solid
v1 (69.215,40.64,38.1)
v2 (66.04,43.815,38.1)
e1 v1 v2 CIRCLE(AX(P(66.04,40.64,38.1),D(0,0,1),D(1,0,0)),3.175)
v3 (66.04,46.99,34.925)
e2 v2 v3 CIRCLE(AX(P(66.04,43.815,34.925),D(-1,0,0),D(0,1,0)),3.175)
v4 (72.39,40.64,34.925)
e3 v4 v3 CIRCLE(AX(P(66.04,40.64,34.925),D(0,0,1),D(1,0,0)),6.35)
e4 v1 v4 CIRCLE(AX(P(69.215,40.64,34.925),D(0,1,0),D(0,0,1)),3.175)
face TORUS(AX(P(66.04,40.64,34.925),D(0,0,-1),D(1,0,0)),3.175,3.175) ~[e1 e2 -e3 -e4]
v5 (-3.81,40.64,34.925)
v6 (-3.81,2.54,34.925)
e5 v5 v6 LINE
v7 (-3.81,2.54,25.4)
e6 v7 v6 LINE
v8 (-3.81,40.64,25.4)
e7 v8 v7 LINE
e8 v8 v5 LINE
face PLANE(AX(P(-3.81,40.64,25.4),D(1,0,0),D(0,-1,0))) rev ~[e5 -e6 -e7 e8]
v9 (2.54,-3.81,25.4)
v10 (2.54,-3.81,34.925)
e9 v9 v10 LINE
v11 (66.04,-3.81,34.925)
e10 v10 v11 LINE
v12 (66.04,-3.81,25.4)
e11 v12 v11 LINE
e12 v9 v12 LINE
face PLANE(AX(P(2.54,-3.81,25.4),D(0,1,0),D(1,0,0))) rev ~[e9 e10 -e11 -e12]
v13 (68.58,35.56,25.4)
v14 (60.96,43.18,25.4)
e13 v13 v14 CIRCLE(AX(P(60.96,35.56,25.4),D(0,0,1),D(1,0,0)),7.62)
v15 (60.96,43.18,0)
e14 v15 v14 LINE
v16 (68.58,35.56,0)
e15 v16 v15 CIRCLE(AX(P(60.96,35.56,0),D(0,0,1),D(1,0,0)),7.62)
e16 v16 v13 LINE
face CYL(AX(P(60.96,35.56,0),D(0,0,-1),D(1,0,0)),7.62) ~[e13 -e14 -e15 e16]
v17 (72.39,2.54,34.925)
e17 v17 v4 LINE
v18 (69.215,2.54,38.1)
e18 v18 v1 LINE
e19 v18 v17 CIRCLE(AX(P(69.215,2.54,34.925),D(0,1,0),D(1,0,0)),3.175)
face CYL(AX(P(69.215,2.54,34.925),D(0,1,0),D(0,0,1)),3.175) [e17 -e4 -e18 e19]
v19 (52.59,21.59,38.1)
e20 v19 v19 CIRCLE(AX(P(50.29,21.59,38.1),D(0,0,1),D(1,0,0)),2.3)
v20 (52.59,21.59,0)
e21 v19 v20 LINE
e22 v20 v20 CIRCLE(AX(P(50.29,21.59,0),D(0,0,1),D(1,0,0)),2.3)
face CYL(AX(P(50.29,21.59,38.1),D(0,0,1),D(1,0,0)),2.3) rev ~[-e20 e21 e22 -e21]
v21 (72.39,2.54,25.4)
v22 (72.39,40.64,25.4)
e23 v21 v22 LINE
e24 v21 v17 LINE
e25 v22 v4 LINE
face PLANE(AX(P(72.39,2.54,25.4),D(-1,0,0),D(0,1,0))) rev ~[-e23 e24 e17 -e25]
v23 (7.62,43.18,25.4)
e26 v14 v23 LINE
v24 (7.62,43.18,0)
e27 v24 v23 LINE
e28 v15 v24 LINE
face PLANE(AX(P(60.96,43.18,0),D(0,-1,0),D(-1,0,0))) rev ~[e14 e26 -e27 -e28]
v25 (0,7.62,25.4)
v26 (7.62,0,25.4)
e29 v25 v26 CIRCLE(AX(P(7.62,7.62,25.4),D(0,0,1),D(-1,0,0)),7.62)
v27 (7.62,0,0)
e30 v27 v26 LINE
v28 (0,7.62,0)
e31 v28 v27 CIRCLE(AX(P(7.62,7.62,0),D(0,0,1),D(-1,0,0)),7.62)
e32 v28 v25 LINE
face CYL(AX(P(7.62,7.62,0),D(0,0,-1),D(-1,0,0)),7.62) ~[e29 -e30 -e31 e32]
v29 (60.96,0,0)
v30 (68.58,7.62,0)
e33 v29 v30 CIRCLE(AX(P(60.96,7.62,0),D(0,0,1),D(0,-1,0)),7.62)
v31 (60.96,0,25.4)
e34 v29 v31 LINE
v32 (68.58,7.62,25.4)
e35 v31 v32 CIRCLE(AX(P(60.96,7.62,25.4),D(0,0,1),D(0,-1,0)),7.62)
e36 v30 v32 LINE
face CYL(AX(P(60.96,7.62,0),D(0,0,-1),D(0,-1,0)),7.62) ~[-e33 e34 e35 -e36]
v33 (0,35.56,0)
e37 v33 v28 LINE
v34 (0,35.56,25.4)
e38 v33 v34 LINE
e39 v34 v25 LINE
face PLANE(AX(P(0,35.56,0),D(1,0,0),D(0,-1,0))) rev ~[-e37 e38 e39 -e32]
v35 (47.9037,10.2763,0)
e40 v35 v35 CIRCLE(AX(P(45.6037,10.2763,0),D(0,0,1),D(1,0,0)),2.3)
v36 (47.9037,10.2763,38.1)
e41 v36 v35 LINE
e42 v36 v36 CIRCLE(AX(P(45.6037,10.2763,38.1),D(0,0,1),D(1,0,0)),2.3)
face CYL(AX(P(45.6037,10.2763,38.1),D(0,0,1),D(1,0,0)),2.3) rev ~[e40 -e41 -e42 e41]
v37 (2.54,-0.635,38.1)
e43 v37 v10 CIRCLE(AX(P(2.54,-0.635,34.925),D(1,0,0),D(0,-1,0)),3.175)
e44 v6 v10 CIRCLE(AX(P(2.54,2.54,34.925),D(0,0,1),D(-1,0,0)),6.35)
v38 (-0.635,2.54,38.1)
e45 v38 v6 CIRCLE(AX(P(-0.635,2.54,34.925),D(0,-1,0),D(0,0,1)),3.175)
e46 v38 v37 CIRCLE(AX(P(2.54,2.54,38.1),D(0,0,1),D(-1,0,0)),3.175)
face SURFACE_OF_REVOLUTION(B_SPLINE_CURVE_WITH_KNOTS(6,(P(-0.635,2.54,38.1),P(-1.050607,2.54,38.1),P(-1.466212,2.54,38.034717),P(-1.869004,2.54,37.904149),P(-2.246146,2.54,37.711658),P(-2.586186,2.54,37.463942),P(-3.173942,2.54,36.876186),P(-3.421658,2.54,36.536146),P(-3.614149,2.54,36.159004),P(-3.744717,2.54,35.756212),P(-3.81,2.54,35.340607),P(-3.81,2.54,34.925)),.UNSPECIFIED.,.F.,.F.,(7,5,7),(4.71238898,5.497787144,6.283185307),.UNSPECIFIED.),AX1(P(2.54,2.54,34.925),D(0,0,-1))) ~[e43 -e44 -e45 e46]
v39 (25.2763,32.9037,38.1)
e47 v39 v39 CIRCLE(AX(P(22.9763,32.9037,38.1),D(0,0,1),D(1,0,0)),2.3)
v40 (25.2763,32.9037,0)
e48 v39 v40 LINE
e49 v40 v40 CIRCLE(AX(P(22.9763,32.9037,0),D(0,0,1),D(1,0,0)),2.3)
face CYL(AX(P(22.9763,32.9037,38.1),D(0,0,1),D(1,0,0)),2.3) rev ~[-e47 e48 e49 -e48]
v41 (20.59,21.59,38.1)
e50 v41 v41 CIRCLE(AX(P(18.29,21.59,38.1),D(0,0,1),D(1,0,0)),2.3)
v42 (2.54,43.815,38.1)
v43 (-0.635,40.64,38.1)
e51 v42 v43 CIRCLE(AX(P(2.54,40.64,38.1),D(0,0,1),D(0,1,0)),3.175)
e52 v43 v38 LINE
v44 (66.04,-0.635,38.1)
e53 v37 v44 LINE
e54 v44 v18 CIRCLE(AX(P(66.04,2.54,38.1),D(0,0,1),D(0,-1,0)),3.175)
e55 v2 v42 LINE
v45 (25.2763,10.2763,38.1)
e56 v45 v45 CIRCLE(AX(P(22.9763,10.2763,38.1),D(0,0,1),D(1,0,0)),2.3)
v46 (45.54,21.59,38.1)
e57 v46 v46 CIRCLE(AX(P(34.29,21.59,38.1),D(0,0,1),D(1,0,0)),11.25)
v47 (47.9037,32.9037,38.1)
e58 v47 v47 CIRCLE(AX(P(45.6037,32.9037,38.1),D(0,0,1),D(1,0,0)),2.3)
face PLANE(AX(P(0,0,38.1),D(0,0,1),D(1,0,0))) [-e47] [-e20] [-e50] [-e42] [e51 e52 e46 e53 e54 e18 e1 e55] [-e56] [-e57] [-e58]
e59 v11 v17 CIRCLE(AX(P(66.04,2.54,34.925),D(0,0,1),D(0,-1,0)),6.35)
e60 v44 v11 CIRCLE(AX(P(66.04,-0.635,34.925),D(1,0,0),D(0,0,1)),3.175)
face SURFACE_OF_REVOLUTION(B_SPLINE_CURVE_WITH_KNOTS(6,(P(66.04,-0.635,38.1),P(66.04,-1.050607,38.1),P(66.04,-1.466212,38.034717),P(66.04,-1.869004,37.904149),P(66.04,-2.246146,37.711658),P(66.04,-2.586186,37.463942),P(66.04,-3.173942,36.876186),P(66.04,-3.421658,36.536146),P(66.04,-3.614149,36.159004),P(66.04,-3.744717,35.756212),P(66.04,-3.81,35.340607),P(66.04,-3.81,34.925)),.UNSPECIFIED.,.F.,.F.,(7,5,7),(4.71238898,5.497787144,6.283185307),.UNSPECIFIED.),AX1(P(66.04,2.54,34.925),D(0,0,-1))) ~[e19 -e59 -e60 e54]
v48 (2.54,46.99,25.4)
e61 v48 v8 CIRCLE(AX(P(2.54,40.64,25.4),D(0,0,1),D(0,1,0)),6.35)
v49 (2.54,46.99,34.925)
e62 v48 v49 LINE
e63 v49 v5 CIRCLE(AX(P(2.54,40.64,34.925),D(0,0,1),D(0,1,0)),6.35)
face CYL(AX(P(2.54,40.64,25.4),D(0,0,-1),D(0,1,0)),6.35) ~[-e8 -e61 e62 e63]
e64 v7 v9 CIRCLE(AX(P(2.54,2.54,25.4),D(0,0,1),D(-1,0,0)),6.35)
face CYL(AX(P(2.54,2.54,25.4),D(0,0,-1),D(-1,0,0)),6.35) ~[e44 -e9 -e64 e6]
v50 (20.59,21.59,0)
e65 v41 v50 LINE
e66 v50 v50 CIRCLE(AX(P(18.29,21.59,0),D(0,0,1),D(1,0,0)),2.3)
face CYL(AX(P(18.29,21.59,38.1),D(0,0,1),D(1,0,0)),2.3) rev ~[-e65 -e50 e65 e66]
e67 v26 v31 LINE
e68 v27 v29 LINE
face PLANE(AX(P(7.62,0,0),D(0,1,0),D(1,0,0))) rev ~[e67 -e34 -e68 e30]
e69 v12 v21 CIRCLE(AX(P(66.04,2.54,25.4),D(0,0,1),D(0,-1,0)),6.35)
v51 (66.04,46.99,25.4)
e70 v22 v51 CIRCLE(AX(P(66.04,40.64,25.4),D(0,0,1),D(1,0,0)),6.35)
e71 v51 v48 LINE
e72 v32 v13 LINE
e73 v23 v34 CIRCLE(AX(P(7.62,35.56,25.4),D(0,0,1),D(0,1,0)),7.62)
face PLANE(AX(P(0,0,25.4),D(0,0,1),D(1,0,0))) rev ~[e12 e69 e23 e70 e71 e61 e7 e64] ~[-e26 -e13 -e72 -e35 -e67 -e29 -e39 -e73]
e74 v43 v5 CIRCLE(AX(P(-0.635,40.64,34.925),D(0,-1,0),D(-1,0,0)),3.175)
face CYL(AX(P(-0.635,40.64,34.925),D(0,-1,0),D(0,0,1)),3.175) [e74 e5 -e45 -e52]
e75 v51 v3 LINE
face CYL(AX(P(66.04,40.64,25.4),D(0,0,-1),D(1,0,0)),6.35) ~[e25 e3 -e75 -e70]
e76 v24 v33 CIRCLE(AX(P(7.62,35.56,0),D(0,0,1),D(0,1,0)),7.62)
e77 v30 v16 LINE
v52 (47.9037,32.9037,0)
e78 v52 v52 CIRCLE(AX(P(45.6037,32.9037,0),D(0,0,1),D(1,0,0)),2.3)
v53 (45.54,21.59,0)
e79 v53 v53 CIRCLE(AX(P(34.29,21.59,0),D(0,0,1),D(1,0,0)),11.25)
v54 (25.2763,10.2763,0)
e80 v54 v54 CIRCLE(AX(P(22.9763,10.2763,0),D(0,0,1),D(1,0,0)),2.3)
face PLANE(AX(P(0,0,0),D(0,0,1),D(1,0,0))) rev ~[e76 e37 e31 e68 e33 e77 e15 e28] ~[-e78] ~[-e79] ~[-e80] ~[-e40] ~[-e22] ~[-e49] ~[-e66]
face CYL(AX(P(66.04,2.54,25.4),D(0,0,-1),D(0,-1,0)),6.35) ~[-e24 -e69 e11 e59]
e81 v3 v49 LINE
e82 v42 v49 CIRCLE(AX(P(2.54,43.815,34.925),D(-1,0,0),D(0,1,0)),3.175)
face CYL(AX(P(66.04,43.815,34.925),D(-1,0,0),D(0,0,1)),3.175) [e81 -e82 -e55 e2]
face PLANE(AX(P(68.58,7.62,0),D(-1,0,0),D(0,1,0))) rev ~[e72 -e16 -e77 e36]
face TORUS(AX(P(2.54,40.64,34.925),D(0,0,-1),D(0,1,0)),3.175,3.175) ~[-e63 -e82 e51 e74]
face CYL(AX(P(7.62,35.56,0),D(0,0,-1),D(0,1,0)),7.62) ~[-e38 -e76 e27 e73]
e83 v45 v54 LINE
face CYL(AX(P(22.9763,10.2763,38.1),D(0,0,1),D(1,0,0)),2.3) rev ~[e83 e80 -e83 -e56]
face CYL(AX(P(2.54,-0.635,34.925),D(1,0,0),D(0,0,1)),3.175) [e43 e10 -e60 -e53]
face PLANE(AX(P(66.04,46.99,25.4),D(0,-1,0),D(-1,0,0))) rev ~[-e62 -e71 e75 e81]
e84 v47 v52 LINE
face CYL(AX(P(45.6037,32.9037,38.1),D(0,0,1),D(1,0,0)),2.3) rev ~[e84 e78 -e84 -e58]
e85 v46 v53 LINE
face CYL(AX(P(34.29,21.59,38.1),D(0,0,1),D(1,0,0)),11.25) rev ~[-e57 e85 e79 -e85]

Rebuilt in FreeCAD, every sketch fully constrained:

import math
import FreeCAD as App
import Part
import Sketcher
from FreeCAD import Vector
Q = App.Units.Quantity


def edges_at(feature, points):
    """Names of the edges that pass closest to the given points."""
    edges = feature.Shape.Edges
    near = lambda p: min(range(len(edges)), key=lambda i: edges[i].distToShape(Part.Vertex(*p))[0])
    return sorted({f"Edge{near(p) + 1}" for p in points})

doc = App.newDocument("Part")
body = doc.addObject("PartDesign::Body", "Body")

# Sketch on XY plane
sketch1 = doc.addObject("Sketcher::SketchObject", "Sketch")
body.addObject(sketch1)
sketch1.AttachmentSupport = (doc.XY_Plane, [""])
sketch1.MapMode = "FlatFace"
sketch1.addGeometry([
    Part.ArcOfCircle(Part.Circle(Vector(7.62, 7.62, 0), Vector(0, 0, 1), 7.62), math.radians(180), math.radians(270)),  # 0
    Part.LineSegment(Vector(7.62, 0, 0), Vector(60.96, 0, 0)),  # 1
    Part.ArcOfCircle(Part.Circle(Vector(60.96, 7.62, 0), Vector(0, 0, 1), 7.62), math.radians(-90), math.radians(0)),  # 2
    Part.LineSegment(Vector(68.58, 7.62, 0), Vector(68.58, 35.56, 0)),  # 3
    Part.ArcOfCircle(Part.Circle(Vector(60.96, 35.56, 0), Vector(0, 0, 1), 7.62), math.radians(0), math.radians(90)),  # 4
    Part.LineSegment(Vector(60.96, 43.18, 0), Vector(7.62, 43.18, 0)),  # 5
    Part.ArcOfCircle(Part.Circle(Vector(7.62, 35.56, 0), Vector(0, 0, 1), 7.62), math.radians(90), math.radians(180)),  # 6
    Part.LineSegment(Vector(0, 35.56, 0), Vector(0, 7.62, 0)),  # 7
], False)
sketch1.addConstraint([
    Sketcher.Constraint("Tangent", 0, 2, 1, 1),
    Sketcher.Constraint("Tangent", 1, 2, 2, 1),
    Sketcher.Constraint("Tangent", 2, 2, 3, 1),
    Sketcher.Constraint("Tangent", 3, 2, 4, 1),
    Sketcher.Constraint("Tangent", 4, 2, 5, 1),
    Sketcher.Constraint("Tangent", 5, 2, 6, 1),
    Sketcher.Constraint("Tangent", 6, 2, 7, 1),
    Sketcher.Constraint("Tangent", 7, 2, 0, 1),
    Sketcher.Constraint("Horizontal", 1),
    Sketcher.Constraint("Vertical", 3),
    Sketcher.Constraint("Horizontal", 5),
    Sketcher.Constraint("Vertical", 7),
    Sketcher.Constraint("Equal", 0, 2),
    Sketcher.Constraint("Equal", 2, 4),
    Sketcher.Constraint("Equal", 4, 6),
    Sketcher.Constraint("PointOnObject", 0, 2, -1),
    Sketcher.Constraint("PointOnObject", 6, 2, -2),
    Sketcher.Constraint("Radius", 0, Q("0.3 in")),
    Sketcher.Constraint("DistanceX", -1, 1, 2, 2, Q("2.7 in")),
    Sketcher.Constraint("DistanceY", -1, 1, 4, 2, Q("1.7 in")),
])
pad1 = doc.addObject("PartDesign::Pad", "Pad")
body.addObject(pad1)
pad1.Profile = sketch1
pad1.Length = Q("1 in")

# Sketch on XY plane
sketch2 = doc.addObject("Sketcher::SketchObject", "Sketch001")
body.addObject(sketch2)
sketch2.AttachmentSupport = (doc.XY_Plane, [""])
sketch2.MapMode = "FlatFace"
sketch2.AttachmentOffset = App.Placement(Vector(0, 0, 1 * 25.4), App.Rotation())
sketch2.addGeometry([
    Part.ArcOfCircle(Part.Circle(Vector(2.54, 2.54, 0), Vector(0, 0, 1), 6.35), math.radians(180), math.radians(270)),  # 0
    Part.LineSegment(Vector(2.54, -3.81, 0), Vector(66.04, -3.81, 0)),  # 1
    Part.ArcOfCircle(Part.Circle(Vector(66.04, 2.54, 0), Vector(0, 0, 1), 6.35), math.radians(-90), math.radians(0)),  # 2
    Part.LineSegment(Vector(72.39, 2.54, 0), Vector(72.39, 40.64, 0)),  # 3
    Part.ArcOfCircle(Part.Circle(Vector(66.04, 40.64, 0), Vector(0, 0, 1), 6.35), math.radians(0), math.radians(90)),  # 4
    Part.LineSegment(Vector(66.04, 46.99, 0), Vector(2.54, 46.99, 0)),  # 5
    Part.ArcOfCircle(Part.Circle(Vector(2.54, 40.64, 0), Vector(0, 0, 1), 6.35), math.radians(90), math.radians(180)),  # 6
    Part.LineSegment(Vector(-3.81, 40.64, 0), Vector(-3.81, 2.54, 0)),  # 7
], False)
sketch2.addConstraint([
    Sketcher.Constraint("Tangent", 0, 2, 1, 1),
    Sketcher.Constraint("Tangent", 1, 2, 2, 1),
    Sketcher.Constraint("Tangent", 2, 2, 3, 1),
    Sketcher.Constraint("Tangent", 3, 2, 4, 1),
    Sketcher.Constraint("Tangent", 4, 2, 5, 1),
    Sketcher.Constraint("Tangent", 5, 2, 6, 1),
    Sketcher.Constraint("Tangent", 6, 2, 7, 1),
    Sketcher.Constraint("Tangent", 7, 2, 0, 1),
    Sketcher.Constraint("Horizontal", 1),
    Sketcher.Constraint("Vertical", 3),
    Sketcher.Constraint("Horizontal", 5),
    Sketcher.Constraint("Vertical", 7),
    Sketcher.Constraint("Equal", 0, 2),
    Sketcher.Constraint("Equal", 2, 4),
    Sketcher.Constraint("Equal", 4, 6),
    Sketcher.Constraint("Radius", 0, Q("0.25 in")),
    Sketcher.Constraint("DistanceY", 1, 2, 4, 2, Q("2 in")),
    Sketcher.Constraint("DistanceX", 1, 1, 1, 2, Q("2.5 in")),
    Sketcher.Constraint("DistanceX", -1, 1, 0, 3, Q("0.1 in")),
    Sketcher.Constraint("DistanceY", -1, 1, 0, 3, Q("0.1 in")),
])
pad2 = doc.addObject("PartDesign::Pad", "Pad001")
body.addObject(pad2)
pad2.Profile = sketch2
pad2.Length = Q("0.5 in")
doc.recompute()

fillet = doc.addObject("PartDesign::Fillet", "Fillet")
body.addObject(fillet)
fillet.Base = (pad2, edges_at(pad2, [
    (-1.95, 45.13, 38.1),
    (-3.81, 21.59, 38.1),
    (-1.95, -1.95, 38.1),
    (34.29, -3.81, 38.1),
    (70.53, -1.95, 38.1),
    (72.39, 21.59, 38.1),
    (70.53, 45.13, 38.1),
    (34.29, 46.99, 38.1),
]))
fillet.Radius = Q("0.125 in")

# Sketch on XY plane
sketch3 = doc.addObject("Sketcher::SketchObject", "Sketch002")
body.addObject(sketch3)
sketch3.AttachmentSupport = (doc.XY_Plane, [""])
sketch3.MapMode = "FlatFace"
sketch3.AttachmentOffset = App.Placement(Vector(0, 0, 1.5 * 25.4), App.Rotation())
sketch3.addGeometry([
    Part.Circle(Vector(34.29, 21.59, 0), Vector(0, 0, 1), 11.25),  # 0
    Part.Circle(Vector(45.6037, 32.9037, 0), Vector(0, 0, 1), 2.3),  # 1
    Part.Circle(Vector(18.29, 21.59, 0), Vector(0, 0, 1), 2.3),  # 2
    Part.Circle(Vector(45.6037, 10.2763, 0), Vector(0, 0, 1), 2.3),  # 3
    Part.Circle(Vector(50.29, 21.59, 0), Vector(0, 0, 1), 2.3),  # 4
    Part.Circle(Vector(22.9763, 32.9037, 0), Vector(0, 0, 1), 2.3),  # 5
    Part.Circle(Vector(22.9763, 10.2763, 0), Vector(0, 0, 1), 2.3),  # 6
], False)
sketch3.addConstraint([
    Sketcher.Constraint("Equal", 1, 2),
    Sketcher.Constraint("Equal", 2, 3),
    Sketcher.Constraint("Equal", 3, 4),
    Sketcher.Constraint("Equal", 4, 5),
    Sketcher.Constraint("Equal", 5, 6),
    Sketcher.Constraint("Horizontal", 0, 3, 2, 3),
    Sketcher.Constraint("Horizontal", 2, 3, 4, 3),
    Sketcher.Constraint("Horizontal", 1, 3, 5, 3),
    Sketcher.Constraint("Horizontal", 3, 3, 6, 3),
    Sketcher.Constraint("Vertical", 1, 3, 3, 3),
    Sketcher.Constraint("Vertical", 5, 3, 6, 3),
    Sketcher.Constraint("Diameter", 1, Q("0.1811 in")),
    Sketcher.Constraint("Diameter", 0, 22.5),
    Sketcher.Constraint("DistanceX", -1, 1, 0, 3, Q("1.35 in")),
    Sketcher.Constraint("DistanceY", -1, 1, 0, 3, Q("0.85 in")),
    Sketcher.Constraint("DistanceX", 2, 3, 4, 3, 32.0),
    Sketcher.Constraint("DistanceX", 3, 3, 4, 3, Q("0.1845 in")),
    Sketcher.Constraint("DistanceX", 2, 3, 5, 3, Q("0.1845 in")),
    Sketcher.Constraint("DistanceX", -1, 1, 1, 3, 45.6037),
    Sketcher.Constraint("DistanceY", -1, 1, 1, 3, 32.9037),
    Sketcher.Constraint("DistanceY", -1, 1, 3, 3, 10.2763),
])
pocket1 = doc.addObject("PartDesign::Pocket", "Pocket")
body.addObject(pocket1)
pocket1.Profile = sketch3
pocket1.Length = Q("1.5 in")

doc.recompute()
